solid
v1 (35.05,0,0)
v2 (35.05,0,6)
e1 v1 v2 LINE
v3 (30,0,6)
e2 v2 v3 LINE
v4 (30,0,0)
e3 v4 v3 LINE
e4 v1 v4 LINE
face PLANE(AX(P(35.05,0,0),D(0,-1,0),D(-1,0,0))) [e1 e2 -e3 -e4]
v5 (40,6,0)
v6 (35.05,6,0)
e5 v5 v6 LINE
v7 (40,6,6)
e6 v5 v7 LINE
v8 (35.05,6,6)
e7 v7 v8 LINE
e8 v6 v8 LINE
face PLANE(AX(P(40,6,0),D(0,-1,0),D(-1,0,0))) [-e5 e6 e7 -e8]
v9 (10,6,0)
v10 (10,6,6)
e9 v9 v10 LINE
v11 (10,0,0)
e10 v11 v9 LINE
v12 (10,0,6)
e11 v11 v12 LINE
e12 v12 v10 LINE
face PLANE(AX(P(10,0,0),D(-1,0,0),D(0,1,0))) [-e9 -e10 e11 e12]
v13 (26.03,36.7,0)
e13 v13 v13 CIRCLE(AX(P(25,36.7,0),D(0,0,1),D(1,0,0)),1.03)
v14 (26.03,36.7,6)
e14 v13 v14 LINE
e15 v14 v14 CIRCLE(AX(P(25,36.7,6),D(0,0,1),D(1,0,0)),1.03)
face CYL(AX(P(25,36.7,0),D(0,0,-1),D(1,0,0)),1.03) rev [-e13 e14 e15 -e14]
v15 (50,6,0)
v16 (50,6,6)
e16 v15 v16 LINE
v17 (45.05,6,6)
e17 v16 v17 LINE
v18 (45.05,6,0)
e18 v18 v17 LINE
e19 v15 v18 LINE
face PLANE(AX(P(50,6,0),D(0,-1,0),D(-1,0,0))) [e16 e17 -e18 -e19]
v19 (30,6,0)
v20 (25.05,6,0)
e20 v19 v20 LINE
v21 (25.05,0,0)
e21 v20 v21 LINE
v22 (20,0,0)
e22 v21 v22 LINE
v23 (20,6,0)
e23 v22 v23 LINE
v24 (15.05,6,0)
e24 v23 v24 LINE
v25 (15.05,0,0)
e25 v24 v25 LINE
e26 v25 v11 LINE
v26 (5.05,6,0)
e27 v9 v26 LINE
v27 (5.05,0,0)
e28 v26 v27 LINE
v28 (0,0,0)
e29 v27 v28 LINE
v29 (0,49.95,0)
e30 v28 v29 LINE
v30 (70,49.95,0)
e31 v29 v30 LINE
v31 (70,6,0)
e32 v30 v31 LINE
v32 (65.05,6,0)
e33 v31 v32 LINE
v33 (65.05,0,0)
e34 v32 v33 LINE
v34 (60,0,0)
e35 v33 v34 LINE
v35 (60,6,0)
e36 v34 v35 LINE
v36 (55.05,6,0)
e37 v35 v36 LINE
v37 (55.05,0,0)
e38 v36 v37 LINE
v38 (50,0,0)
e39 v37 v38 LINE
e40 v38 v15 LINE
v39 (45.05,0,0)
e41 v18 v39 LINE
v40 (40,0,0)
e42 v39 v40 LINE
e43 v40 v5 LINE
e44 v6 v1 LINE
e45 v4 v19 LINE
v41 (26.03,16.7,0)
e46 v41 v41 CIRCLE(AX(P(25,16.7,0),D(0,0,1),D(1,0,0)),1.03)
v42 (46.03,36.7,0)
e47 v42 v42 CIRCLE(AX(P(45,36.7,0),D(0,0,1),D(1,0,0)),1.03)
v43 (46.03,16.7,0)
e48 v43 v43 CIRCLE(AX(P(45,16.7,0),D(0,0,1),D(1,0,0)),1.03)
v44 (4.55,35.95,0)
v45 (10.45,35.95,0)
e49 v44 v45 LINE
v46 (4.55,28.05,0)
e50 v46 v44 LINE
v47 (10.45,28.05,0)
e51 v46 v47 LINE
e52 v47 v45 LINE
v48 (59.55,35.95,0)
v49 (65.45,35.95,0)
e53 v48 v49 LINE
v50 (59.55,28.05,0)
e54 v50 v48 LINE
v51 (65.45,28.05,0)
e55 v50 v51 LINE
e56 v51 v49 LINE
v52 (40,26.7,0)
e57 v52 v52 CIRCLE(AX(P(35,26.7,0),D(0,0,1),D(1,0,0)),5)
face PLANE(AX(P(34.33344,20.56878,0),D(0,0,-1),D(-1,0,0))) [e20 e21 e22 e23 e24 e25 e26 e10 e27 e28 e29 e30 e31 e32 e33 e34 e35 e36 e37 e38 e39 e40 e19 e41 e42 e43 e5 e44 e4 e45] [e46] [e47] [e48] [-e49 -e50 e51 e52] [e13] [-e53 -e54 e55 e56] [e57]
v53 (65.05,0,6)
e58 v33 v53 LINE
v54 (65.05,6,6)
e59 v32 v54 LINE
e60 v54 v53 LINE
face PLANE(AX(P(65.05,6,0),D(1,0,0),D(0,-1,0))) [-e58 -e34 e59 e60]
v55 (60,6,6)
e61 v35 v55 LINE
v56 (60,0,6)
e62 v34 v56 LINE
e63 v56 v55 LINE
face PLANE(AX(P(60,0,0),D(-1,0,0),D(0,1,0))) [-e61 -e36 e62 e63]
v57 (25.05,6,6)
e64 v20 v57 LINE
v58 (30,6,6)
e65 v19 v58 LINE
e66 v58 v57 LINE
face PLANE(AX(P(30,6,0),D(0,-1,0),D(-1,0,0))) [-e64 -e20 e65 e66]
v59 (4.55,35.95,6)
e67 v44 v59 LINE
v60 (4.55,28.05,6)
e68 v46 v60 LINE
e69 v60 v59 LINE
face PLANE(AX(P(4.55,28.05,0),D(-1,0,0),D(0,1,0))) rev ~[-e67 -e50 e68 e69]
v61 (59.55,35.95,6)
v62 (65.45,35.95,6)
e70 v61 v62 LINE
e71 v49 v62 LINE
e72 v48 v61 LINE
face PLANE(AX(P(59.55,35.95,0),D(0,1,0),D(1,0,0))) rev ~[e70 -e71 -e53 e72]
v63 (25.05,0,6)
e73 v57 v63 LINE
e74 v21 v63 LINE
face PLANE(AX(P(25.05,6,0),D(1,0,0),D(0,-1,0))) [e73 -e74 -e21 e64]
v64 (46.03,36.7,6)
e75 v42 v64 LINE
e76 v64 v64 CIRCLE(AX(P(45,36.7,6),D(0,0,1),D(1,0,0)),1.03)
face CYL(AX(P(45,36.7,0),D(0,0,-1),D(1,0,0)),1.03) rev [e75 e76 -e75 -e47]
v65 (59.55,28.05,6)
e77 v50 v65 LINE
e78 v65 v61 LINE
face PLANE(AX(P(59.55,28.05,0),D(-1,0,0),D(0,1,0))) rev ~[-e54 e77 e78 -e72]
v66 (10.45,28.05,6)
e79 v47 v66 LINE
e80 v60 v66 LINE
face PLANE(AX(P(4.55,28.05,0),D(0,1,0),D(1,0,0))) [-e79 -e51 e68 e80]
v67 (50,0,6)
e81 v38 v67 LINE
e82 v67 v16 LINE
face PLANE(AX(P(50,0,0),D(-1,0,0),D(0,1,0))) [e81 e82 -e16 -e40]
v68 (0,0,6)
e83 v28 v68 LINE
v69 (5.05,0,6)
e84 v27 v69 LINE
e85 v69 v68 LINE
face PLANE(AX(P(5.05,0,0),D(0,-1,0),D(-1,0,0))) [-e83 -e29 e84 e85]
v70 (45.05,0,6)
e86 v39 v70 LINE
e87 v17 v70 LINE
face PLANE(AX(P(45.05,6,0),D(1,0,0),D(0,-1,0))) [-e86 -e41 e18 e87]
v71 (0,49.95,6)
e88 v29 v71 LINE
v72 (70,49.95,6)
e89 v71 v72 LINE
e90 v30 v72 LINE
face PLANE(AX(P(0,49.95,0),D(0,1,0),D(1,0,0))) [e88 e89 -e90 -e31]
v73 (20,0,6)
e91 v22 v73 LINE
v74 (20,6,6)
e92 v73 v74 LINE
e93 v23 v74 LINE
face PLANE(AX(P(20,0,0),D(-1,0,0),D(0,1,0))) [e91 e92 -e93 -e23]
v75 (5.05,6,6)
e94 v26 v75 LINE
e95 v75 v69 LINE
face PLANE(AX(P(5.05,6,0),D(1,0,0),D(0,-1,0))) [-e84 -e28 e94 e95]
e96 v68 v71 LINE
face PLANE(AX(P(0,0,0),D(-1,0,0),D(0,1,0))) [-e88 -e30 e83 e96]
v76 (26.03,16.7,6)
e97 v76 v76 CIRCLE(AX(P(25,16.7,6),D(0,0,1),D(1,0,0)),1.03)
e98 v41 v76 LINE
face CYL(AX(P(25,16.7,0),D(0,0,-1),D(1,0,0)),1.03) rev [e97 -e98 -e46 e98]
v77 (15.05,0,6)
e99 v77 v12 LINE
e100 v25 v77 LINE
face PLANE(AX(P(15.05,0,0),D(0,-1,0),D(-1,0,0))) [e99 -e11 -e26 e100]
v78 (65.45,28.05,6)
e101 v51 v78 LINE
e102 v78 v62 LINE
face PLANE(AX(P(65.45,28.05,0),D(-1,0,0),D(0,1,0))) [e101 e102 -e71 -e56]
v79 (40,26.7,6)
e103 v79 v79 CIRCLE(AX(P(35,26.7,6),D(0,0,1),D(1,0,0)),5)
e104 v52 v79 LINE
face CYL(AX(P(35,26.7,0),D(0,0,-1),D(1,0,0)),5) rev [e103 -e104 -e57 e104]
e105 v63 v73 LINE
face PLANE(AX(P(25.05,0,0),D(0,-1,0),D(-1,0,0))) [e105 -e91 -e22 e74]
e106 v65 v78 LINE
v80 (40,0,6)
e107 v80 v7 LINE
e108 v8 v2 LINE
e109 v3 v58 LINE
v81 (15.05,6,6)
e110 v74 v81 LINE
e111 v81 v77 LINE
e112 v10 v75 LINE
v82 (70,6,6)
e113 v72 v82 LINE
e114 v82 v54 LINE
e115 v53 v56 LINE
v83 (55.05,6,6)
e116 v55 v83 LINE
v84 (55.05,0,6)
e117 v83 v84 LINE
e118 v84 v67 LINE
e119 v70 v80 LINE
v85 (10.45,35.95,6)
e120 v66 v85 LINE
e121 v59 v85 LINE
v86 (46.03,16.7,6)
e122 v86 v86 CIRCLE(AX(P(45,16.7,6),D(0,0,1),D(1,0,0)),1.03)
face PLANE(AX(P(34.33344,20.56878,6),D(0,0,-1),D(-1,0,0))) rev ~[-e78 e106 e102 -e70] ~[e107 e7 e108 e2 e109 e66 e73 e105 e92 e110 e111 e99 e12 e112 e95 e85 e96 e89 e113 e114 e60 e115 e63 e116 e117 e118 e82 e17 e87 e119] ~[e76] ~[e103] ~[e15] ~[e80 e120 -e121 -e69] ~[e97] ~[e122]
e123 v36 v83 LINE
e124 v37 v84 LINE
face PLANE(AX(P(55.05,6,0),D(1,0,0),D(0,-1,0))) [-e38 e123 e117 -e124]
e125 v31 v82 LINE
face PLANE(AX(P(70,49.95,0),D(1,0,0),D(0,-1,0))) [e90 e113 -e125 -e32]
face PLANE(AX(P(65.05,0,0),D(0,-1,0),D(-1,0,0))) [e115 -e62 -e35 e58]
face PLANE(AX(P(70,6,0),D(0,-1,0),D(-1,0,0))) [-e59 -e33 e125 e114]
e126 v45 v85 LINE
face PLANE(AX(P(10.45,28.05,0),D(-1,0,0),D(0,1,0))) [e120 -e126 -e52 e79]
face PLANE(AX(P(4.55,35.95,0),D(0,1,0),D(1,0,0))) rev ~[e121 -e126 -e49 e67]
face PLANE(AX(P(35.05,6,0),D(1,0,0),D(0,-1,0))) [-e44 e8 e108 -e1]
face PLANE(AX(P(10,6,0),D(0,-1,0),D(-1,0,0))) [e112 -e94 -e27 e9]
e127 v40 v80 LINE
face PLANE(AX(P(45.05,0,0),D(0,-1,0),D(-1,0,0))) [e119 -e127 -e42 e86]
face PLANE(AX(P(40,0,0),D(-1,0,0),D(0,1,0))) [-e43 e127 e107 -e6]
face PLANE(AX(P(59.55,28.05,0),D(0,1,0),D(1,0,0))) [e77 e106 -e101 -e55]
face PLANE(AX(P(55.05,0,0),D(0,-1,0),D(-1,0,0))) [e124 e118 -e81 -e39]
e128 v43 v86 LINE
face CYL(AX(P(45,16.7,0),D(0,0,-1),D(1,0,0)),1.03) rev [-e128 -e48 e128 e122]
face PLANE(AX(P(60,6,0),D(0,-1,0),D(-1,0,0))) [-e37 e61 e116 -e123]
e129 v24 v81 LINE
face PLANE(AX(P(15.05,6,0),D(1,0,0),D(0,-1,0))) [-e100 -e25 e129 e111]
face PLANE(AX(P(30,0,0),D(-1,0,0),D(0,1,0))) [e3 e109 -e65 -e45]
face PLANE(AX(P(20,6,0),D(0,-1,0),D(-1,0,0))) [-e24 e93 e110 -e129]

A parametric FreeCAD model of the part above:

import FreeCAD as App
import Part
import Sketcher

doc = App.newDocument("Part")
params = doc.addObject("Spreadsheet::Sheet", "Params")
for row, (alias, value) in enumerate([
    ("sketch1_diameter", "10 mm"),
    ("sketch1_diameter2", "2.06 mm"),
    ("sketch1_width", "70 mm"),
    ("sketch1_height", "6 mm"),
    ("sketch1_width2", "5.9 mm"),
    ("pad1_length", "6 mm"),
], start=1):
    params.set(f"A{row}", alias)
    params.set(f"B{row}", "=" + value)
    params.setAlias(f"B{row}", alias)

body = doc.addObject("PartDesign::Body", "Body")

sketch1 = body.newObject("Sketcher::SketchObject", "Sketch")
sketch1.AttachmentSupport = (doc.getObject("XY_Plane"), [""])
sketch1.MapMode = "FlatFace"
sketch1.addGeometry([
    Part.LineSegment(App.Vector(0, 50, 0), App.Vector(0, 0, 0)),
    Part.LineSegment(App.Vector(0, 0, 0), App.Vector(5, 0, 0)),
    Part.LineSegment(App.Vector(5, 0, 0), App.Vector(5, 6, 0)),
    Part.LineSegment(App.Vector(5, 6, 0), App.Vector(10, 6, 0)),
    Part.LineSegment(App.Vector(10, 6, 0), App.Vector(10, 0, 0)),
    Part.LineSegment(App.Vector(10, 0, 0), App.Vector(15.1, 0, 0)),
    Part.LineSegment(App.Vector(15.1, 0, 0), App.Vector(15.1, 6, 0)),
    Part.LineSegment(App.Vector(15.1, 6, 0), App.Vector(20, 6, 0)),
    Part.LineSegment(App.Vector(20, 6, 0), App.Vector(20, 0, 0)),
    Part.LineSegment(App.Vector(20, 0, 0), App.Vector(25.1, 0, 0)),
    Part.LineSegment(App.Vector(25.1, 0, 0), App.Vector(25.1, 6, 0)),
    Part.LineSegment(App.Vector(25.1, 6, 0), App.Vector(30, 6, 0)),
    Part.LineSegment(App.Vector(30, 6, 0), App.Vector(30, 0, 0)),
    Part.LineSegment(App.Vector(30, 0, 0), App.Vector(35, 0, 0)),
    Part.LineSegment(App.Vector(35, 0, 0), App.Vector(35, 6, 0)),
    Part.LineSegment(App.Vector(35, 6, 0), App.Vector(40, 6, 0)),
    Part.LineSegment(App.Vector(40, 6, 0), App.Vector(40, 0, 0)),
    Part.LineSegment(App.Vector(40, 0, 0), App.Vector(45, 0, 0)),
    Part.LineSegment(App.Vector(45, 0, 0), App.Vector(45, 6, 0)),
    Part.LineSegment(App.Vector(45, 6, 0), App.Vector(50, 6, 0)),
    Part.LineSegment(App.Vector(50, 6, 0), App.Vector(50, 0, 0)),
    Part.LineSegment(App.Vector(50, 0, 0), App.Vector(55, 0, 0)),
    Part.LineSegment(App.Vector(55, 0, 0), App.Vector(55, 6, 0)),
    Part.LineSegment(App.Vector(55, 6, 0), App.Vector(60, 6, 0)),
    Part.LineSegment(App.Vector(60, 6, 0), App.Vector(60, 0, 0)),
    Part.LineSegment(App.Vector(60, 0, 0), App.Vector(65, 0, 0)),
    Part.LineSegment(App.Vector(65, 0, 0), App.Vector(65, 6, 0)),
    Part.LineSegment(App.Vector(65, 6, 0), App.Vector(70, 6, 0)),
    Part.LineSegment(App.Vector(70, 6, 0), App.Vector(70, 50, 0)),
    Part.LineSegment(App.Vector(70, 50, 0), App.Vector(0, 50, 0)),
    Part.Circle(App.Vector(45, 16.7, 0), App.Vector(0, 0, 1), 1),
    Part.Circle(App.Vector(35, 26.7, 0), App.Vector(0, 0, 1), 5),
    Part.Circle(App.Vector(25, 16.7, 0), App.Vector(0, 0, 1), 1),
    Part.LineSegment(App.Vector(59.5, 28.1, 0), App.Vector(59.5, 36, 0)),
    Part.LineSegment(App.Vector(59.5, 36, 0), App.Vector(65.5, 36, 0)),
    Part.LineSegment(App.Vector(65.5, 36, 0), App.Vector(65.5, 28.1, 0)),
    Part.LineSegment(App.Vector(65.5, 28.1, 0), App.Vector(59.5, 28.1, 0)),
    Part.Circle(App.Vector(45, 36.7, 0), App.Vector(0, 0, 1), 1),
    Part.LineSegment(App.Vector(4.5, 28.1, 0), App.Vector(4.5, 36, 0)),
    Part.LineSegment(App.Vector(4.5, 36, 0), App.Vector(10.4, 36, 0)),
    Part.LineSegment(App.Vector(10.4, 36, 0), App.Vector(10.4, 28.1, 0)),
    Part.LineSegment(App.Vector(10.4, 28.1, 0), App.Vector(4.5, 28.1, 0)),
    Part.Circle(App.Vector(25, 36.7, 0), App.Vector(0, 0, 1), 1),
], False)
sketch1.addConstraint([
    Sketcher.Constraint("Coincident", 0, 2, 1, 1),
    Sketcher.Constraint("Coincident", 1, 2, 2, 1),
    Sketcher.Constraint("Coincident", 2, 2, 3, 1),
    Sketcher.Constraint("Coincident", 3, 2, 4, 1),
    Sketcher.Constraint("Coincident", 4, 2, 5, 1),
    Sketcher.Constraint("Coincident", 5, 2, 6, 1),
    Sketcher.Constraint("Coincident", 6, 2, 7, 1),
    Sketcher.Constraint("Coincident", 7, 2, 8, 1),
    Sketcher.Constraint("Coincident", 8, 2, 9, 1),
    Sketcher.Constraint("Coincident", 9, 2, 10, 1),
    Sketcher.Constraint("Coincident", 10, 2, 11, 1),
    Sketcher.Constraint("Coincident", 11, 2, 12, 1),
    Sketcher.Constraint("Coincident", 12, 2, 13, 1),
    Sketcher.Constraint("Coincident", 13, 2, 14, 1),
    Sketcher.Constraint("Coincident", 14, 2, 15, 1),
    Sketcher.Constraint("Coincident", 15, 2, 16, 1),
    Sketcher.Constraint("Coincident", 16, 2, 17, 1),
    Sketcher.Constraint("Coincident", 17, 2, 18, 1),
    Sketcher.Constraint("Coincident", 18, 2, 19, 1),
    Sketcher.Constraint("Coincident", 19, 2, 20, 1),
    Sketcher.Constraint("Coincident", 20, 2, 21, 1),
    Sketcher.Constraint("Coincident", 21, 2, 22, 1),
    Sketcher.Constraint("Coincident", 22, 2, 23, 1),
    Sketcher.Constraint("Coincident", 23, 2, 24, 1),
    Sketcher.Constraint("Coincident", 24, 2, 25, 1),
    Sketcher.Constraint("Coincident", 25, 2, 26, 1),
    Sketcher.Constraint("Coincident", 26, 2, 27, 1),
    Sketcher.Constraint("Coincident", 27, 2, 28, 1),
    Sketcher.Constraint("Coincident", 28, 2, 29, 1),
    Sketcher.Constraint("Coincident", 29, 2, 0, 1),
    Sketcher.Constraint("Coincident", 33, 2, 34, 1),
    Sketcher.Constraint("Coincident", 34, 2, 35, 1),
    Sketcher.Constraint("Coincident", 35, 2, 36, 1),
    Sketcher.Constraint("Coincident", 36, 2, 33, 1),
    Sketcher.Constraint("Coincident", 38, 2, 39, 1),
    Sketcher.Constraint("Coincident", 39, 2, 40, 1),
    Sketcher.Constraint("Coincident", 40, 2, 41, 1),
    Sketcher.Constraint("Coincident", 41, 2, 38, 1),
    Sketcher.Constraint("Vertical", 0),
    Sketcher.Constraint("Horizontal", 1),
    Sketcher.Constraint("Vertical", 2),
    Sketcher.Constraint("Horizontal", 3),
    Sketcher.Constraint("Vertical", 4),
    Sketcher.Constraint("Horizontal", 5),
    Sketcher.Constraint("Vertical", 6),
    Sketcher.Constraint("Horizontal", 7),
    Sketcher.Constraint("Vertical", 8),
    Sketcher.Constraint("Horizontal", 9),
    Sketcher.Constraint("Vertical", 10),
    Sketcher.Constraint("Horizontal", 11),
    Sketcher.Constraint("Vertical", 12),
    Sketcher.Constraint("Horizontal", 13),
    Sketcher.Constraint("Vertical", 14),
    Sketcher.Constraint("Horizontal", 15),
    Sketcher.Constraint("Vertical", 16),
    Sketcher.Constraint("Horizontal", 17),
    Sketcher.Constraint("Vertical", 18),
    Sketcher.Constraint("Horizontal", 19),
    Sketcher.Constraint("Vertical", 20),
    Sketcher.Constraint("Horizontal", 21),
    Sketcher.Constraint("Vertical", 22),
    Sketcher.Constraint("Horizontal", 23),
    Sketcher.Constraint("Vertical", 24),
    Sketcher.Constraint("Horizontal", 25),
    Sketcher.Constraint("Vertical", 26),
    Sketcher.Constraint("Horizontal", 27),
    Sketcher.Constraint("Vertical", 28),
    Sketcher.Constraint("Horizontal", 29),
    Sketcher.Constraint("Vertical", 33),
    Sketcher.Constraint("Horizontal", 34),
    Sketcher.Constraint("Vertical", 35),
    Sketcher.Constraint("Horizontal", 36),
    Sketcher.Constraint("Vertical", 38),
    Sketcher.Constraint("Horizontal", 39),
    Sketcher.Constraint("Vertical", 40),
    Sketcher.Constraint("Horizontal", 41),
    Sketcher.Constraint("Coincident", 0, 2, -1, 1),
    Sketcher.Constraint("Equal", 30, 32),
    Sketcher.Constraint("Equal", 32, 37),
    Sketcher.Constraint("Equal", 37, 42),
    Sketcher.Constraint("PointOnObject", 4, 2, -1),
    Sketcher.Constraint("PointOnObject", 8, 2, -1),
    Sketcher.Constraint("PointOnObject", 12, 2, -1),
    Sketcher.Constraint("PointOnObject", 16, 2, -1),
    Sketcher.Constraint("PointOnObject", 20, 2, -1),
    Sketcher.Constraint("PointOnObject", 24, 2, -1),
    Sketcher.Constraint("Horizontal", 30, 3, 32, 3),
    Sketcher.Constraint("Horizontal", 37, 3, 42, 3),
    Sketcher.Constraint("Horizontal", 3, 2, 6, 2),
    Sketcher.Constraint("Horizontal", 7, 2, 10, 2),
    Sketcher.Constraint("Horizontal", 11, 2, 14, 2),
    Sketcher.Constraint("Horizontal", 15, 2, 18, 2),
    Sketcher.Constraint("Horizontal", 19, 2, 22, 2),
    Sketcher.Constraint("Horizontal", 23, 2, 26, 2),
    Sketcher.Constraint("Horizontal", 34, 2, 38, 2),
    Sketcher.Constraint("Horizontal", 36, 2, 40, 2),
    Sketcher.Constraint("Vertical", 30, 3, 37, 3),
    Sketcher.Constraint("Vertical", 32, 3, 42, 3),
    Sketcher.Constraint("Equal", 1, 5),
    Sketcher.Constraint("Equal", 3, 7),
    Sketcher.Constraint("Equal", 5, 9),
    Sketcher.Constraint("Equal", 7, 11),
    Sketcher.Constraint("Equal", 9, 13),
    Sketcher.Constraint("Equal", 11, 15),
    Sketcher.Constraint("Equal", 13, 17),
    Sketcher.Constraint("Equal", 15, 19),
    Sketcher.Constraint("Equal", 17, 21),
    Sketcher.Constraint("Equal", 19, 23),
    Sketcher.Constraint("Equal", 21, 25),
    Sketcher.Constraint("Equal", 23, 27),
    Sketcher.Constraint("Equal", 36, 39),
    Sketcher.Constraint("Diameter", 31, 10.0),
    Sketcher.Constraint("Diameter", 30, 2.06),
    Sketcher.Constraint("DistanceX", 29, 2, 29, 1, 70.0),
    Sketcher.Constraint("DistanceY", 2, 1, 2, 2, 6.0),
    Sketcher.Constraint("DistanceX", 34, 1, 34, 2, 5.9),
    Sketcher.Constraint("DistanceY", 33, 1, 33, 2, 7.9),
    Sketcher.Constraint("DistanceX", -1, 1, 30, 3, 45.0),
    Sketcher.Constraint("DistanceX", -1, 1, 31, 3, 35.0),
    Sketcher.Constraint("DistanceX", -1, 1, 32, 3, 25.0),
    Sketcher.Constraint("DistanceY", 30, 3, 31, 3, 10.0),
    Sketcher.Constraint("DistanceY", 31, 3, 37, 3, 10.0),
    Sketcher.Constraint("DistanceY", 33, 2, 28, 2, 14.0),
    Sketcher.Constraint("DistanceX", 1, 1, 1, 2, 5.05),
    Sketcher.Constraint("DistanceY", 0, 2, 0, 1, 49.95),
    Sketcher.Constraint("DistanceY", -1, 1, 30, 3, 16.7),
    Sketcher.Constraint("DistanceX", 26, 2, 34, 2, 0.4),
    Sketcher.Constraint("DistanceX", 38, 2, 2, 2, 0.5),
])
sketch1.setExpression("Constraints[111]", "Params.sketch1_diameter")
sketch1.setExpression("Constraints[112]", "Params.sketch1_diameter2")
sketch1.setExpression("Constraints[113]", "Params.sketch1_width")
sketch1.setExpression("Constraints[114]", "Params.sketch1_height")
sketch1.setExpression("Constraints[115]", "Params.sketch1_width2")
pad1 = body.newObject("PartDesign::Pad", "Pad")
pad1.Profile = sketch1
pad1.setExpression("Length", "Params.pad1_length")

doc.recompute()
